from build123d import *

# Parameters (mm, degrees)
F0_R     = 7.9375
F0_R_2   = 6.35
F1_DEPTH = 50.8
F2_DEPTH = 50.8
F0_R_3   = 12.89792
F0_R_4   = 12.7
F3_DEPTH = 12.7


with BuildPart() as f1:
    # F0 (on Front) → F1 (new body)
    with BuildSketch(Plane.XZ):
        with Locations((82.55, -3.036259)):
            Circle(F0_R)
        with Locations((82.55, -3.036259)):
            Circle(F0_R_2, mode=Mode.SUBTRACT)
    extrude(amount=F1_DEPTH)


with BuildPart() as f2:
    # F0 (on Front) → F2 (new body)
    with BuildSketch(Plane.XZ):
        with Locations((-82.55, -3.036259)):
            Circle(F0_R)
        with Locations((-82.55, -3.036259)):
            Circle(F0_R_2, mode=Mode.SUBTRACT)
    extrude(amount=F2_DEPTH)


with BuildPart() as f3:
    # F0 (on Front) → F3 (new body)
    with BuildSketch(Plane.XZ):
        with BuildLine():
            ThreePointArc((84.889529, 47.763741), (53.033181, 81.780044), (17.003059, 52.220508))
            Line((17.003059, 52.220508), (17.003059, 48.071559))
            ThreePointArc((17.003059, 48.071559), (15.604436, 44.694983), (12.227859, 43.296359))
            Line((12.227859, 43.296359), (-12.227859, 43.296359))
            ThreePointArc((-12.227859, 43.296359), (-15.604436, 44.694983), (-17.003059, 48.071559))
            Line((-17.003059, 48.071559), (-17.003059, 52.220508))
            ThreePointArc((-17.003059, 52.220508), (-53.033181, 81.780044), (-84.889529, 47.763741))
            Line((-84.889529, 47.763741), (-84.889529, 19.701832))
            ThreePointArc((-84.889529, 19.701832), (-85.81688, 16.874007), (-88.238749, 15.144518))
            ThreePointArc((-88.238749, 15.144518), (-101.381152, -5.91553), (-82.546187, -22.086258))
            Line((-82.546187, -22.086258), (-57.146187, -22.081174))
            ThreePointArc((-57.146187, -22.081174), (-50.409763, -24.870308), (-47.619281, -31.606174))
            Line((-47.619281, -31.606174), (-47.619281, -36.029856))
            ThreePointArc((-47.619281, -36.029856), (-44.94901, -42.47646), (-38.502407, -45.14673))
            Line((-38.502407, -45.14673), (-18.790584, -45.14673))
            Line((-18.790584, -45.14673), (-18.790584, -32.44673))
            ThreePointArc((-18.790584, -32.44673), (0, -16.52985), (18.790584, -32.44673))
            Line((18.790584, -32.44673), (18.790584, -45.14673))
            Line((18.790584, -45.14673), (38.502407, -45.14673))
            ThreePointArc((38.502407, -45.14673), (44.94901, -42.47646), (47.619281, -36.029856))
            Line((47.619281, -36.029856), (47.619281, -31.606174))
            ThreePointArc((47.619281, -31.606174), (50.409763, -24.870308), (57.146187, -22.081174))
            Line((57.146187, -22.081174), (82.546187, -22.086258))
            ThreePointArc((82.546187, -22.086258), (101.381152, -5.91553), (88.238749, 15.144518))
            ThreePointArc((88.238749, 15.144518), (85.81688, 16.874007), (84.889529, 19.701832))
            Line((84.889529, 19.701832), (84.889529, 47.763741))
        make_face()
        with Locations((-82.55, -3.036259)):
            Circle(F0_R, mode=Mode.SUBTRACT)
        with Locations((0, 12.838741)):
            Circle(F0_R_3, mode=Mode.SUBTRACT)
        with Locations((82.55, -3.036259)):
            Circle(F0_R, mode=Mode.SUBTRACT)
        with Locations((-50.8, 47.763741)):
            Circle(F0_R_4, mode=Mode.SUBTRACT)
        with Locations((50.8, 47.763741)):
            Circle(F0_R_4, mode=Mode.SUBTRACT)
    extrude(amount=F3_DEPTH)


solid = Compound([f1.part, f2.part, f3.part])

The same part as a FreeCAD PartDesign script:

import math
import FreeCAD as App
import Part
import Sketcher
Q = App.Units.Quantity

doc = App.newDocument("Part")
body = doc.addObject("PartDesign::Body", "Body")

# Sketch on XZ plane
sketch1 = body.newObject("Sketcher::SketchObject", "Sketch")
sketch1.AttachmentSupport = (doc.getObject("XZ_Plane"), [""])
sketch1.MapMode = "FlatFace"
sketch1.addGeometry([
    Part.Circle(App.Vector(82.55, -3.036259, 0), App.Vector(0, 0, 1), 7.9375),
    Part.Circle(App.Vector(82.55, -3.036259, 0), App.Vector(0, 0, 1), 6.35),
], False)
sketch1.addConstraint([
    Sketcher.Constraint("Coincident", 1, 3, 0, 3),
    Sketcher.Constraint("Diameter", 1, Q("0.5 in")),
    Sketcher.Constraint("Diameter", 0, Q("0.625 in")),
    Sketcher.Constraint("DistanceX", -1, 1, 0, 3, Q("3.25 in")),
    Sketcher.Constraint("DistanceY", 0, 3, -1, 1, 3.036259),
])
pad1 = body.newObject("PartDesign::Pad", "Pad")
pad1.Profile = sketch1
pad1.Length = Q("2 in")
body2 = doc.addObject("PartDesign::Body", "Body001")

# Sketch on XZ plane
sketch2 = body2.newObject("Sketcher::SketchObject", "Sketch001")
sketch2.AttachmentSupport = (doc.getObject("XZ_Plane001"), [""])
sketch2.MapMode = "FlatFace"
sketch2.addGeometry([
    Part.Circle(App.Vector(-82.55, -3.036259, 0), App.Vector(0, 0, 1), 7.9375),
    Part.Circle(App.Vector(-82.55, -3.036259, 0), App.Vector(0, 0, 1), 6.35),
], False)
sketch2.addConstraint([
    Sketcher.Constraint("Coincident", 1, 3, 0, 3),
    Sketcher.Constraint("Diameter", 1, Q("0.5 in")),
    Sketcher.Constraint("Diameter", 0, Q("0.625 in")),
    Sketcher.Constraint("DistanceX", 0, 3, -1, 1, Q("3.25 in")),
    Sketcher.Constraint("DistanceY", 0, 3, -1, 1, 3.036259),
])
pad2 = body2.newObject("PartDesign::Pad", "Pad001")
pad2.Profile = sketch2
pad2.Length = Q("2 in")
body3 = doc.addObject("PartDesign::Body", "Body002")

# Sketch on XZ plane
sketch3 = body3.newObject("Sketcher::SketchObject", "Sketch002")
sketch3.AttachmentSupport = (doc.getObject("XZ_Plane002"), [""])
sketch3.MapMode = "FlatFace"
sketch3.addGeometry([
    Part.ArcOfCircle(Part.Circle(App.Vector(50.8, 47.763741, 0), App.Vector(0, 0, 1), 34.089529), math.radians(0.000001), math.radians(172.487809)),  # 0
    Part.LineSegment(App.Vector(17.003059, 52.220508, 0), App.Vector(17.003059, 48.071559, 0)),  # 1
    Part.ArcOfCircle(Part.Circle(App.Vector(12.22786, 48.071558, 0), App.Vector(0, 0, 1), 4.775199), math.radians(-90.000008), math.radians(0.000008)),  # 2
    Part.LineSegment(App.Vector(12.227859, 43.296359, 0), App.Vector(-12.227859, 43.296359, 0)),  # 3
    Part.ArcOfCircle(Part.Circle(App.Vector(-12.22786, 48.071558, 0), App.Vector(0, 0, 1), 4.775199), math.radians(179.999992), math.radians(270.000008)),  # 4
    Part.LineSegment(App.Vector(-17.003059, 48.071559, 0), App.Vector(-17.003059, 52.220508, 0)),  # 5
    Part.ArcOfCircle(Part.Circle(App.Vector(-50.8, 47.763741, 0), App.Vector(0, 0, 1), 34.089529), math.radians(7.512191), math.radians(179.999999)),  # 6
    Part.LineSegment(App.Vector(-84.889529, 47.763741, 0), App.Vector(-84.889529, 19.701832, 0)),  # 7
    Part.ArcOfCircle(Part.Circle(App.Vector(-89.664727, 19.701831, 0), App.Vector(0, 0, 1), 4.775198), math.radians(-72.625158), math.radians(0.00001)),  # 8
    Part.ArcOfCircle(Part.Circle(App.Vector(-82.55, -3.036258, 0), App.Vector(0, 0, 1), 19.05), math.radians(107.374856), math.radians(270.011468)),  # 9
    Part.LineSegment(App.Vector(-82.546187, -22.086258, 0), App.Vector(-57.146187, -22.081174, 0)),  # 10
    Part.ArcOfCircle(Part.Circle(App.Vector(-57.144282, -31.606174, 0), App.Vector(0, 0, 1), 9.525001), math.radians(0.000002), math.radians(90.011462)),  # 11
    Part.LineSegment(App.Vector(-47.619281, -31.606174, 0), App.Vector(-47.619281, -36.029856, 0)),  # 12
    Part.ArcOfCircle(Part.Circle(App.Vector(-38.502407, -36.029856, 0), App.Vector(0, 0, 1), 9.116874), math.radians(179.999998), math.radians(270.000002)),  # 13
    Part.LineSegment(App.Vector(-38.502407, -45.14673, 0), App.Vector(-18.790584, -45.14673, 0)),  # 14
    Part.LineSegment(App.Vector(-18.790584, -45.14673, 0), App.Vector(-18.790584, -32.44673, 0)),  # 15
    Part.ArcOfCircle(Part.Circle(App.Vector(0, -35.57985, 0), App.Vector(0, 0, 1), 19.05), math.radians(9.466344), math.radians(170.533656)),  # 16
    Part.LineSegment(App.Vector(18.790584, -32.44673, 0), App.Vector(18.790584, -45.14673, 0)),  # 17
    Part.LineSegment(App.Vector(18.790584, -45.14673, 0), App.Vector(38.502407, -45.14673, 0)),  # 18
    Part.ArcOfCircle(Part.Circle(App.Vector(38.502407, -36.029856, 0), App.Vector(0, 0, 1), 9.116874), math.radians(-90.000002), math.radians(0.000002)),  # 19
    Part.LineSegment(App.Vector(47.619281, -36.029856, 0), App.Vector(47.619281, -31.606174, 0)),  # 20
    Part.ArcOfCircle(Part.Circle(App.Vector(57.144282, -31.606174, 0), App.Vector(0, 0, 1), 9.525001), math.radians(89.988538), math.radians(179.999998)),  # 21
    Part.LineSegment(App.Vector(57.146187, -22.081174, 0), App.Vector(82.546187, -22.086258, 0)),  # 22
    Part.ArcOfCircle(Part.Circle(App.Vector(82.55, -3.036258, 0), App.Vector(0, 0, 1), 19.05), math.radians(-90.011468), math.radians(72.625144)),  # 23
    Part.ArcOfCircle(Part.Circle(App.Vector(89.664727, 19.701831, 0), App.Vector(0, 0, 1), 4.775198), math.radians(179.99999), math.radians(252.625158)),  # 24
    Part.LineSegment(App.Vector(84.889529, 19.701832, 0), App.Vector(84.889529, 47.763741, 0)),  # 25
    Part.Circle(App.Vector(-82.55, -3.036259, 0), App.Vector(0, 0, 1), 7.9375),  # 26
    Part.Circle(App.Vector(82.55, -3.036259, 0), App.Vector(0, 0, 1), 7.9375),  # 27
    Part.Circle(App.Vector(0, 12.838741, 0), App.Vector(0, 0, 1), 12.89792),  # 28
    Part.Circle(App.Vector(-50.8, 47.763741, 0), App.Vector(0, 0, 1), 12.7),  # 29
    Part.Circle(App.Vector(50.8, 47.763741, 0), App.Vector(0, 0, 1), 12.7),  # 30
], False)
sketch3.addConstraint([
    Sketcher.Constraint("Coincident", 0, 2, 1, 1),
    Sketcher.Constraint("Tangent", 1, 2, 2, 2),
    Sketcher.Constraint("Tangent", 2, 1, 3, 1),
    Sketcher.Constraint("Tangent", 3, 2, 4, 2),
    Sketcher.Constraint("Tangent", 4, 1, 5, 1),
    Sketcher.Constraint("Coincident", 5, 2, 6, 1),
    Sketcher.Constraint("Tangent", 6, 2, 7, 1),
    Sketcher.Constraint("Tangent", 7, 2, 8, 2),
    Sketcher.Constraint("Tangent", 8, 1, 9, 1),
    Sketcher.Constraint("Tangent", 9, 2, 10, 1),
    Sketcher.Constraint("Tangent", 10, 2, 11, 2),
    Sketcher.Constraint("Tangent", 11, 1, 12, 1),
    Sketcher.Constraint("Tangent", 12, 2, 13, 1),
    Sketcher.Constraint("Tangent", 13, 2, 14, 1),
    Sketcher.Constraint("Coincident", 14, 2, 15, 1),
    Sketcher.Constraint("Coincident", 15, 2, 16, 2),
    Sketcher.Constraint("Coincident", 16, 1, 17, 1),
    Sketcher.Constraint("Coincident", 17, 2, 18, 1),
    Sketcher.Constraint("Tangent", 18, 2, 19, 1),
    Sketcher.Constraint("Tangent", 19, 2, 20, 1),
    Sketcher.Constraint("Tangent", 20, 2, 21, 2),
    Sketcher.Constraint("Tangent", 21, 1, 22, 1),
    Sketcher.Constraint("Tangent", 22, 2, 23, 1),
    Sketcher.Constraint("Tangent", 23, 2, 24, 2),
    Sketcher.Constraint("Tangent", 24, 1, 25, 1),
    Sketcher.Constraint("Tangent", 25, 2, 0, 1),
    Sketcher.Constraint("Vertical", 1),
    Sketcher.Constraint("Horizontal", 3),
    Sketcher.Constraint("Vertical", 5),
    Sketcher.Constraint("Vertical", 7),
    Sketcher.Constraint("Vertical", 12),
    Sketcher.Constraint("Horizontal", 14),
    Sketcher.Constraint("Vertical", 15),
    Sketcher.Constraint("Vertical", 17),
    Sketcher.Constraint("Horizontal", 18),
    Sketcher.Constraint("Vertical", 20),
    Sketcher.Constraint("Vertical", 25),
    Sketcher.Constraint("Coincident", 26, 3, 9, 3),
    Sketcher.Constraint("Coincident", 27, 3, 23, 3),
    Sketcher.Constraint("Coincident", 29, 3, 6, 3),
    Sketcher.Constraint("Coincident", 30, 3, 0, 3),
    Sketcher.Constraint("Equal", 2, 4),
    Sketcher.Constraint("Equal", 0, 6),
    Sketcher.Constraint("Equal", 4, 8),
    Sketcher.Constraint("Equal", 9, 16),
    Sketcher.Constraint("Equal", 13, 19),
    Sketcher.Constraint("Equal", 11, 21),
    Sketcher.Constraint("Equal", 16, 23),
    Sketcher.Constraint("Equal", 8, 24),
    Sketcher.Constraint("Equal", 26, 27),
    Sketcher.Constraint("Equal", 29, 30),
    Sketcher.Constraint("Symmetric", 0, 3, 6, 3, -2),
    Sketcher.Constraint("Symmetric", 13, 3, 19, 3, -2),
    Sketcher.Constraint("Symmetric", 9, 3, 23, 3, -2),
    Sketcher.Constraint("Symmetric", 15, 2, 16, 1, -2),
    Sketcher.Constraint("PointOnObject", 28, 3, -2),
    Sketcher.Constraint("Horizontal", 11, 3, 21, 3),
    Sketcher.Constraint("Horizontal", 0, 2, 5, 2),
    Sketcher.Constraint("Diameter", 29, Q("1 in")),
    Sketcher.Constraint("Radius", 9, Q("0.75 in")),
    Sketcher.Constraint("Distance", 10, Q("1 in")),
    Sketcher.Constraint("Diameter", 26, Q("0.625 in")),
    Sketcher.Constraint("DistanceY", 15, 1, 15, 2, Q("0.5 in")),
    Sketcher.Constraint("DistanceX", -1, 1, 0, 3, Q("2 in")),
    Sketcher.Constraint("Radius", 2, Q("0.188 in")),
    Sketcher.Constraint("Radius", 11, Q("0.375 in")),
    Sketcher.Constraint("DistanceY", 9, 3, 6, 3, Q("2 in")),
    Sketcher.Constraint("DistanceX", 9, 3, -1, 1, Q("3.25 in")),
    Sketcher.Constraint("Diameter", 28, 25.79584),
    Sketcher.Constraint("Radius", 0, 34.089529),
    Sketcher.Constraint("DistanceY", 28, 3, 0, 3, Q("1.375 in")),
    Sketcher.Constraint("Radius", 13, 9.116874),
    Sketcher.Constraint("DistanceY", 11, 3, 9, 3, Q("1.1247998 in")),
    Sketcher.Constraint("DistanceX", 3, 2, 3, 1, 24.455718),
    Sketcher.Constraint("DistanceY", 1, 2, 1, 1, 4.148949),
    Sketcher.Constraint("DistanceY", 12, 2, 9, 2, 13.943598),
    Sketcher.Constraint("DistanceX", 14, 1, 14, 2, 19.711823),
    Sketcher.Constraint("DistanceY", -1, 1, 0, 3, 47.763741),
])
pad3 = body3.newObject("PartDesign::Pad", "Pad002")
pad3.Profile = sketch3
pad3.Length = Q("0.5 in")

doc.recompute()
